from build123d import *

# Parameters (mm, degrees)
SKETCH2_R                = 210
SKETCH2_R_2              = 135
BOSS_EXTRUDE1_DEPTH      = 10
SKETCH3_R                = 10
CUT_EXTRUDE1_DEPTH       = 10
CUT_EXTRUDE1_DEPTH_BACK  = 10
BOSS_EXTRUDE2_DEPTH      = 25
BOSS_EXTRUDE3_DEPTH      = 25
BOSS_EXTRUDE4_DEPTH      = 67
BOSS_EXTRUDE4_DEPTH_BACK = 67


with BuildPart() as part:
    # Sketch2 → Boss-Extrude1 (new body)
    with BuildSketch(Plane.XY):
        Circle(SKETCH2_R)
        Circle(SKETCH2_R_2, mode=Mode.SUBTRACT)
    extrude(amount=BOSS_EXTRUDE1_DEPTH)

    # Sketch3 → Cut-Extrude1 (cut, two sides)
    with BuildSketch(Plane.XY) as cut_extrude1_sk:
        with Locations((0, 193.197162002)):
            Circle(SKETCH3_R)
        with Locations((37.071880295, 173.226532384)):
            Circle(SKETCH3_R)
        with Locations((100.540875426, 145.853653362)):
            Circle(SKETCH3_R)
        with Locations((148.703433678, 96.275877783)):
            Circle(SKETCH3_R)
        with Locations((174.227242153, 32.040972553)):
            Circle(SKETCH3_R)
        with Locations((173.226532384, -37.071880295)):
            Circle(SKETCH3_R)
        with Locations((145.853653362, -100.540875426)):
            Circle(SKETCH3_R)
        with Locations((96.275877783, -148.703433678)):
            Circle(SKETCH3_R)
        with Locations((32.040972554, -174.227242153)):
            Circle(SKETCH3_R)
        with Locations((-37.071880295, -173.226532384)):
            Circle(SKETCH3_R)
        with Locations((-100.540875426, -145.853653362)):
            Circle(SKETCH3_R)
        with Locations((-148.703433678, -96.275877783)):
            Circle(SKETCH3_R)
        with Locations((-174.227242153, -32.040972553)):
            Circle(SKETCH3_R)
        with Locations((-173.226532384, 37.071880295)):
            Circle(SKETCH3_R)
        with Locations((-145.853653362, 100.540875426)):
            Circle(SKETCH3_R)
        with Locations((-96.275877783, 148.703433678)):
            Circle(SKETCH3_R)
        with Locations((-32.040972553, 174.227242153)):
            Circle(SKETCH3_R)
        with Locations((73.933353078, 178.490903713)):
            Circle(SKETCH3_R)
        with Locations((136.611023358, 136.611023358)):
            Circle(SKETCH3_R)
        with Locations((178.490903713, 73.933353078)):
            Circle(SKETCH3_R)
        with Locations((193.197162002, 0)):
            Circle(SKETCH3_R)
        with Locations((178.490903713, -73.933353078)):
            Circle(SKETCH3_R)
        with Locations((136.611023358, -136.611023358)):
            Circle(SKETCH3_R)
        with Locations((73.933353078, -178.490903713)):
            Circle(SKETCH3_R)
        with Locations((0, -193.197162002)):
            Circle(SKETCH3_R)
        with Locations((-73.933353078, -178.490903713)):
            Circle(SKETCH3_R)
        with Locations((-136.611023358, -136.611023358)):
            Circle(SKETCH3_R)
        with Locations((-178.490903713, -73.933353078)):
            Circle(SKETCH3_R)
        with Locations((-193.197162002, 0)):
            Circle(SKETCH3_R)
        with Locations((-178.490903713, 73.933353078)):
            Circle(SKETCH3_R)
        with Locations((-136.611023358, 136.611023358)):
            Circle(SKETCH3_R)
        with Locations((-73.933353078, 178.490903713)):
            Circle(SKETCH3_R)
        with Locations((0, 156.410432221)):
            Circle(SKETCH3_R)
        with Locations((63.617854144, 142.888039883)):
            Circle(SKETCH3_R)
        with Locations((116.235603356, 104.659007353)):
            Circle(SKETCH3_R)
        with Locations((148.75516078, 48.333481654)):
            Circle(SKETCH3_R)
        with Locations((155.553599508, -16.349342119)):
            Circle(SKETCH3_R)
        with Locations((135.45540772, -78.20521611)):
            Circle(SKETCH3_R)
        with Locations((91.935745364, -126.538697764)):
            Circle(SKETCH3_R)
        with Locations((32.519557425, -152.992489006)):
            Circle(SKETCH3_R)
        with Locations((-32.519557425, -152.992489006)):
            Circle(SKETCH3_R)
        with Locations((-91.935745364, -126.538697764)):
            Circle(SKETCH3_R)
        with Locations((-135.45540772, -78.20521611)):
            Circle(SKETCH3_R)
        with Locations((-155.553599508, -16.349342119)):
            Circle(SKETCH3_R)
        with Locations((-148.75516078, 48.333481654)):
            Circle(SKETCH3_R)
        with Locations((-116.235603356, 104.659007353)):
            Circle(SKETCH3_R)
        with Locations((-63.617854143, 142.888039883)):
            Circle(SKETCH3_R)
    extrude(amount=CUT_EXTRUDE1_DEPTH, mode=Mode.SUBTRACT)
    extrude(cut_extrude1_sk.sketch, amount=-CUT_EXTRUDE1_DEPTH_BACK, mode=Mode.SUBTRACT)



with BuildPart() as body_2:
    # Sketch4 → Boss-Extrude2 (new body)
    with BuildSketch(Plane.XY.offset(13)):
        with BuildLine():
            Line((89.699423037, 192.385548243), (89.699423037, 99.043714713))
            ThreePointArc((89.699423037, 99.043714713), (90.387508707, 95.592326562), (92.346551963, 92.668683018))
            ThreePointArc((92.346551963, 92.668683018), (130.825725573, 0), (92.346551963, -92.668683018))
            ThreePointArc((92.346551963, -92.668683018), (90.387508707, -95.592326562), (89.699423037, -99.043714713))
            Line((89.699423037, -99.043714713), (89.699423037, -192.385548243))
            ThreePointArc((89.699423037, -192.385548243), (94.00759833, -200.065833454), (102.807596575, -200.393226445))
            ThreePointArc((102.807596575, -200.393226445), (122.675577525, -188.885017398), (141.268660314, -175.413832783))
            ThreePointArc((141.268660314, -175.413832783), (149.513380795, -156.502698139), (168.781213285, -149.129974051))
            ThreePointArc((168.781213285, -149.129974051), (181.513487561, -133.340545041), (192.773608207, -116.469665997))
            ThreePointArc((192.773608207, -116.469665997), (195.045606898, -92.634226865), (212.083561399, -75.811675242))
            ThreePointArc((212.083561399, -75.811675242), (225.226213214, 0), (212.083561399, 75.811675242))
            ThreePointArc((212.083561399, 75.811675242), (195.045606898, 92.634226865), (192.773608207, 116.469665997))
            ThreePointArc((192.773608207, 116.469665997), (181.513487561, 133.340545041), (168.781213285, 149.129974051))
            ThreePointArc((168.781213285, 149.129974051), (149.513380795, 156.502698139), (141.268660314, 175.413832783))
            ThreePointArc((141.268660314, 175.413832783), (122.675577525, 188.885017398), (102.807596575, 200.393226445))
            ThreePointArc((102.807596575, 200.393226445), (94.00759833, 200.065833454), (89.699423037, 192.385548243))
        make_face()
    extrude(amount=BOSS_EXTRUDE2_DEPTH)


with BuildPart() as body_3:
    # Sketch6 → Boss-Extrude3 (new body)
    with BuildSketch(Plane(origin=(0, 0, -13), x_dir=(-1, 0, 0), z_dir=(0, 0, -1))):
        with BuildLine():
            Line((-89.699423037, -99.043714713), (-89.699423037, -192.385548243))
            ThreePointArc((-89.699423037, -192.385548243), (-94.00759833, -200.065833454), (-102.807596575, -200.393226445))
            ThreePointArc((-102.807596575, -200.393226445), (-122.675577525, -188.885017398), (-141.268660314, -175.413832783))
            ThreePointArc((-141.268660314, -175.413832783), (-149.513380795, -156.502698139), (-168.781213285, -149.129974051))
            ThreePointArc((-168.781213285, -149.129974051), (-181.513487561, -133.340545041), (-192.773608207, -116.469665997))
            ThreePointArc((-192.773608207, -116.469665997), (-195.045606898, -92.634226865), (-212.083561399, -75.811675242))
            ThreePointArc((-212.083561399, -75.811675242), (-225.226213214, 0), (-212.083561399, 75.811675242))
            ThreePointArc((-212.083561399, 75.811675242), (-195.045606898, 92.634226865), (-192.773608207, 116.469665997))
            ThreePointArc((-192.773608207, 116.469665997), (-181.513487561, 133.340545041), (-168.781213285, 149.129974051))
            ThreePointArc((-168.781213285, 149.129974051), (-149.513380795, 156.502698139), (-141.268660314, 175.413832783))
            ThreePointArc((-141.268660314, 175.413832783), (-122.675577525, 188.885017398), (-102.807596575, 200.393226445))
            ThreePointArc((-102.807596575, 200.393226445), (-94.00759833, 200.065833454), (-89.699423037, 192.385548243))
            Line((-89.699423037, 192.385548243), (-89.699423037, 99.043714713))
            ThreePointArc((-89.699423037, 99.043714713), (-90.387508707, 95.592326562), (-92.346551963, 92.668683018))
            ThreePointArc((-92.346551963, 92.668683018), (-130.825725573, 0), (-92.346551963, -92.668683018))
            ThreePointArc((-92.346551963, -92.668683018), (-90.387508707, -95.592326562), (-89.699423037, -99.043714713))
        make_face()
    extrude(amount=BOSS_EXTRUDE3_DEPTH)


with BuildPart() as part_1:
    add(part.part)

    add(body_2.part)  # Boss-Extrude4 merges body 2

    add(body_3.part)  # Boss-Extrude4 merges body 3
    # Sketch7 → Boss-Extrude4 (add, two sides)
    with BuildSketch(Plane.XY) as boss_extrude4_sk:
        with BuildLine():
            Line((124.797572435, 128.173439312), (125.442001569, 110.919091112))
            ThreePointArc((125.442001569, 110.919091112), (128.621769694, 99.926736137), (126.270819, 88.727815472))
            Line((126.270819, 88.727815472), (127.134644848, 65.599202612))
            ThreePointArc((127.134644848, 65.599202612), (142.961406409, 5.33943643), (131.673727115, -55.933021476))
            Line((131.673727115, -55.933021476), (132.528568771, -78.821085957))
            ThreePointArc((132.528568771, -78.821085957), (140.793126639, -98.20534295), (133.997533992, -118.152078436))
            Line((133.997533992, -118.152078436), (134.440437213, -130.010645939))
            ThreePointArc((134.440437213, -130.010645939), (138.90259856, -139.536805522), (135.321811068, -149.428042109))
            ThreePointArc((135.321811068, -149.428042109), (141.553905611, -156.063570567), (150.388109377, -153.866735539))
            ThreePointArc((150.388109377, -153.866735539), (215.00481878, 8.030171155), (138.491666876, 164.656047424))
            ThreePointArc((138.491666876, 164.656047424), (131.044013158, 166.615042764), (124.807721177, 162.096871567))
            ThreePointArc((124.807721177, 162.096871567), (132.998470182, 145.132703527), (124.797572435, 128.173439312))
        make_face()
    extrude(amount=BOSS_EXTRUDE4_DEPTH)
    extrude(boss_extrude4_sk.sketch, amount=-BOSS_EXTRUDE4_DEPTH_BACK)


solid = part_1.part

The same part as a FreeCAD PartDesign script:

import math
import FreeCAD as App
import Part
import Sketcher

V = App.Vector

doc = App.newDocument("Part")
body = doc.addObject("PartDesign::Body", "Body")

sketch1 = body.newObject("Sketcher::SketchObject", "Sketch")
sketch1.AttachmentSupport = (doc.getObject("XY_Plane"), [""])
sketch1.MapMode = "FlatFace"
sketch1.addGeometry([
    Part.Circle(V(0, 0, 0), V(0, 0, 1), 210),
    Part.Circle(V(0, 0, 0), V(0, 0, 1), 135),
], False)
sketch1.addConstraint([
    Sketcher.Constraint("Coincident", 0, 3, -1, 1),
    Sketcher.Constraint("Coincident", 1, 3, -1, 1),
    Sketcher.Constraint("Diameter", 0, 420.0),
    Sketcher.Constraint("Diameter", 1, 270.0),
])
pad1 = body.newObject("PartDesign::Pad", "Pad")
pad1.Profile = sketch1
pad1.Length = 10

sketch2 = body.newObject("Sketcher::SketchObject", "Sketch001")
sketch2.AttachmentSupport = (doc.getObject("XY_Plane"), [""])
sketch2.MapMode = "FlatFace"
sketch2.addGeometry([
    Part.Circle(V(0, 193, 0), V(0, 0, 1), 10),
    Part.Circle(V(37, 173, 0), V(0, 0, 1), 10),
    Part.Circle(V(101, 146, 0), V(0, 0, 1), 10),
    Part.Circle(V(149, 96, 0), V(0, 0, 1), 10),
    Part.Circle(V(174, 32, 0), V(0, 0, 1), 10),
    Part.Circle(V(173, -37, 0), V(0, 0, 1), 10),
    Part.Circle(V(146, -101, 0), V(0, 0, 1), 10),
    Part.Circle(V(96, -149, 0), V(0, 0, 1), 10),
    Part.Circle(V(32, -174, 0), V(0, 0, 1), 10),
    Part.Circle(V(-37, -173, 0), V(0, 0, 1), 10),
    Part.Circle(V(-101, -146, 0), V(0, 0, 1), 10),
    Part.Circle(V(-149, -96, 0), V(0, 0, 1), 10),
    Part.Circle(V(-174, -32, 0), V(0, 0, 1), 10),
    Part.Circle(V(-173, 37, 0), V(0, 0, 1), 10),
    Part.Circle(V(-146, 101, 0), V(0, 0, 1), 10),
    Part.Circle(V(-96, 149, 0), V(0, 0, 1), 10),
    Part.Circle(V(-32, 174, 0), V(0, 0, 1), 10),
    Part.Circle(V(74, 178, 0), V(0, 0, 1), 10),
    Part.Circle(V(137, 137, 0), V(0, 0, 1), 10),
    Part.Circle(V(178, 74, 0), V(0, 0, 1), 10),
    Part.Circle(V(193, 0, 0), V(0, 0, 1), 10),
    Part.Circle(V(178, -74, 0), V(0, 0, 1), 10),
    Part.Circle(V(137, -137, 0), V(0, 0, 1), 10),
    Part.Circle(V(74, -178, 0), V(0, 0, 1), 10),
    Part.Circle(V(0, -193, 0), V(0, 0, 1), 10),
    Part.Circle(V(-74, -178, 0), V(0, 0, 1), 10),
    Part.Circle(V(-137, -137, 0), V(0, 0, 1), 10),
    Part.Circle(V(-178, -74, 0), V(0, 0, 1), 10),
    Part.Circle(V(-193, 0, 0), V(0, 0, 1), 10),
    Part.Circle(V(-178, 74, 0), V(0, 0, 1), 10),
    Part.Circle(V(-137, 137, 0), V(0, 0, 1), 10),
    Part.Circle(V(-74, 178, 0), V(0, 0, 1), 10),
    Part.Circle(V(0, 156, 0), V(0, 0, 1), 10),
    Part.Circle(V(64, 143, 0), V(0, 0, 1), 10),
    Part.Circle(V(116, 105, 0), V(0, 0, 1), 10),
    Part.Circle(V(149, 48, 0), V(0, 0, 1), 10),
    Part.Circle(V(156, -16, 0), V(0, 0, 1), 10),
    Part.Circle(V(135, -78, 0), V(0, 0, 1), 10),
    Part.Circle(V(92, -127, 0), V(0, 0, 1), 10),
    Part.Circle(V(33, -153, 0), V(0, 0, 1), 10),
    Part.Circle(V(-33, -153, 0), V(0, 0, 1), 10),
    Part.Circle(V(-92, -127, 0), V(0, 0, 1), 10),
    Part.Circle(V(-135, -78, 0), V(0, 0, 1), 10),
    Part.Circle(V(-156, -16, 0), V(0, 0, 1), 10),
    Part.Circle(V(-149, 48, 0), V(0, 0, 1), 10),
    Part.Circle(V(-116, 105, 0), V(0, 0, 1), 10),
    Part.Circle(V(-64, 143, 0), V(0, 0, 1), 10),
], False)
sketch2.addConstraint([
    Sketcher.Constraint("Equal", 0, 1),
    Sketcher.Constraint("Equal", 1, 2),
    Sketcher.Constraint("Equal", 2, 3),
    Sketcher.Constraint("Equal", 3, 4),
    Sketcher.Constraint("Equal", 4, 5),
    Sketcher.Constraint("Equal", 5, 6),
    Sketcher.Constraint("Equal", 6, 7),
    Sketcher.Constraint("Equal", 7, 8),
    Sketcher.Constraint("Equal", 8, 9),
    Sketcher.Constraint("Equal", 9, 10),
    Sketcher.Constraint("Equal", 10, 11),
    Sketcher.Constraint("Equal", 11, 12),
    Sketcher.Constraint("Equal", 12, 13),
    Sketcher.Constraint("Equal", 13, 14),
    Sketcher.Constraint("Equal", 14, 15),
    Sketcher.Constraint("Equal", 15, 16),
    Sketcher.Constraint("Equal", 16, 17),
    Sketcher.Constraint("Equal", 17, 18),
    Sketcher.Constraint("Equal", 18, 19),
    Sketcher.Constraint("Equal", 19, 20),
    Sketcher.Constraint("Equal", 20, 21),
    Sketcher.Constraint("Equal", 21, 22),
    Sketcher.Constraint("Equal", 22, 23),
    Sketcher.Constraint("Equal", 23, 24),
    Sketcher.Constraint("Equal", 24, 25),
    Sketcher.Constraint("Equal", 25, 26),
    Sketcher.Constraint("Equal", 26, 27),
    Sketcher.Constraint("Equal", 27, 28),
    Sketcher.Constraint("Equal", 28, 29),
    Sketcher.Constraint("Equal", 29, 30),
    Sketcher.Constraint("Equal", 30, 31),
    Sketcher.Constraint("Equal", 31, 32),
    Sketcher.Constraint("Equal", 32, 33),
    Sketcher.Constraint("Equal", 33, 34),
    Sketcher.Constraint("Equal", 34, 35),
    Sketcher.Constraint("Equal", 35, 36),
    Sketcher.Constraint("Equal", 36, 37),
    Sketcher.Constraint("Equal", 37, 38),
    Sketcher.Constraint("Equal", 38, 39),
    Sketcher.Constraint("Equal", 39, 40),
    Sketcher.Constraint("Equal", 40, 41),
    Sketcher.Constraint("Equal", 41, 42),
    Sketcher.Constraint("Equal", 42, 43),
    Sketcher.Constraint("Equal", 43, 44),
    Sketcher.Constraint("Equal", 44, 45),
    Sketcher.Constraint("Equal", 45, 46),
    Sketcher.Constraint("Symmetric", 1, 3, 9, 3, -1, 1),
    Sketcher.Constraint("Symmetric", 2, 3, 10, 3, -1, 1),
    Sketcher.Constraint("Symmetric", 3, 3, 11, 3, -1, 1),
    Sketcher.Constraint("Symmetric", 4, 3, 12, 3, -1, 1),
    Sketcher.Constraint("Symmetric", 5, 3, 13, 3, -1, 1),
    Sketcher.Constraint("Symmetric", 6, 3, 14, 3, -1, 1),
    Sketcher.Constraint("Symmetric", 7, 3, 15, 3, -1, 1),
    Sketcher.Constraint("Symmetric", 8, 3, 16, 3, -1, 1),
    Sketcher.Constraint("Symmetric", 0, 3, 24, 3, -1, 1),
    Sketcher.Constraint("Symmetric", 17, 3, 25, 3, -1, 1),
    Sketcher.Constraint("Symmetric", 18, 3, 26, 3, -1, 1),
    Sketcher.Constraint("Symmetric", 19, 3, 27, 3, -1, 1),
    Sketcher.Constraint("Symmetric", 20, 3, 28, 3, -1, 1),
    Sketcher.Constraint("Symmetric", 21, 3, 29, 3, -1, 1),
    Sketcher.Constraint("Symmetric", 22, 3, 30, 3, -1, 1),
    Sketcher.Constraint("Symmetric", 23, 3, 31, 3, -1, 1),
    Sketcher.Constraint("Symmetric", 23, 3, 25, 3, -2),
    Sketcher.Constraint("Symmetric", 22, 3, 26, 3, -2),
    Sketcher.Constraint("Symmetric", 21, 3, 27, 3, -2),
    Sketcher.Constraint("Symmetric", 39, 3, 40, 3, -2),
    Sketcher.Constraint("Symmetric", 38, 3, 41, 3, -2),
    Sketcher.Constraint("Symmetric", 37, 3, 42, 3, -2),
    Sketcher.Constraint("Symmetric", 36, 3, 43, 3, -2),
    Sketcher.Constraint("Symmetric", 35, 3, 44, 3, -2),
    Sketcher.Constraint("Symmetric", 34, 3, 45, 3, -2),
    Sketcher.Constraint("Symmetric", 33, 3, 46, 3, -2),
    Sketcher.Constraint("PointOnObject", 0, 3, -2),
    Sketcher.Constraint("PointOnObject", 20, 3, -1),
    Sketcher.Constraint("PointOnObject", 32, 3, -2),
    Sketcher.Constraint("Diameter", 0, 20.0),
    Sketcher.Constraint("DistanceX", 35, 3, 20, 3, 44.442001),
    Sketcher.Constraint("DistanceX", -1, 1, 36, 3, 155.5536),
    Sketcher.Constraint("DistanceX", 3, 3, 5, 3, 24.523099),
    Sketcher.Constraint("DistanceY", 9, 3, 7, 3, 24.523099),
    Sketcher.Constraint("DistanceY", 19, 3, 2, 3, 71.9203),
    Sketcher.Constraint("DistanceX", 23, 3, 6, 3, 71.9203),
    Sketcher.Constraint("DistanceY", 32, 3, 1, 3, 16.8161),
    Sketcher.Constraint("DistanceX", 33, 3, 17, 3, 10.315499),
    Sketcher.Constraint("DistanceX", 34, 3, 19, 3, 62.2553),
    Sketcher.Constraint("DistanceY", 13, 3, 44, 3, 11.261601),
    Sketcher.Constraint("DistanceX", -1, 1, 1, 3, 37.07188),
    Sketcher.Constraint("DistanceY", 5, 3, -1, 1, 37.07188),
    Sketcher.Constraint("DistanceY", -1, 1, 33, 3, 142.88804),
    Sketcher.Constraint("DistanceX", -1, 1, 35, 3, 148.755161),
    Sketcher.Constraint("DistanceY", 39, 3, -1, 1, 152.992489),
    Sketcher.Constraint("DistanceY", 1, 3, 0, 3, 19.97063),
    Sketcher.Constraint("DistanceY", 2, 3, 1, 3, 27.372879),
    Sketcher.Constraint("DistanceX", 2, 3, 3, 3, 48.162558),
    Sketcher.Constraint("DistanceX", 3, 3, 4, 3, 25.523808),
    Sketcher.Constraint("DistanceY", 4, 3, 2, 3, 113.812681),
    Sketcher.Constraint("DistanceX", 1, 3, 4, 3, 137.155362),
    Sketcher.Constraint("DistanceY", 5, 3, 3, 3, 133.347758),
    Sketcher.Constraint("DistanceX", 6, 3, 5, 3, 27.372879),
    Sketcher.Constraint("DistanceY", 6, 3, 2, 3, 246.394529),
    Sketcher.Constraint("DistanceY", 7, 3, 6, 3, 48.162558),
    Sketcher.Constraint("DistanceY", 8, 3, 7, 3, 25.523808),
    Sketcher.Constraint("DistanceX", 8, 3, 6, 3, 113.812681),
    Sketcher.Constraint("DistanceX", 9, 3, 7, 3, 133.347758),
    Sketcher.Constraint("DistanceY", 1, 3, 17, 3, 5.264371),
    Sketcher.Constraint("DistanceY", 18, 3, 2, 3, 9.24263),
    Sketcher.Constraint("DistanceX", 18, 3, 3, 3, 12.09241),
    Sketcher.Constraint("DistanceX", 3, 3, 19, 3, 29.78747),
    Sketcher.Constraint("DistanceY", 3, 3, 34, 3, 8.38313),
    Sketcher.Constraint("DistanceY", 5, 3, 36, 3, 20.722538),
    Sketcher.Constraint("DistanceY", 6, 3, 37, 3, 22.335659),
    Sketcher.Constraint("DistanceX", 37, 3, 36, 3, 20.098192),
    Sketcher.Constraint("DistanceY", 38, 3, 37, 3, 48.333482),
    Sketcher.Constraint("DistanceX", 39, 3, 7, 3, 63.75632),
    Sketcher.Constraint("DistanceX", 10, 3, 41, 3, 8.60513),
])
pocket1 = body.newObject("PartDesign::Pocket", "Pocket")
pocket1.Profile = sketch2
pocket1.Type = "ThroughAll"
pocket1.Midplane = True
body2 = doc.addObject("PartDesign::Body", "Body001")

sketch3 = body2.newObject("Sketcher::SketchObject", "Sketch002")
sketch3.AttachmentSupport = (doc.getObject("XY_Plane001"), [""])
sketch3.MapMode = "FlatFace"
sketch3.AttachmentOffset = App.Placement(V(0, 0, 13), App.Rotation())
sketch3.addGeometry([
    Part.LineSegment(V(90, 192, 0), V(90, 99, 0)),
    Part.ArcOfCircle(Part.Circle(V(99, 99, 0), V(0, 0, 1), 9), math.radians(180), math.radians(225)),
    Part.ArcOfCircle(Part.Circle(V(0, 0, 0), V(0, 0, 1), 131), math.radians(-45), math.radians(45)),
    Part.ArcOfCircle(Part.Circle(V(99, -99, 0), V(0, 0, 1), 9), math.radians(135), math.radians(180)),
    Part.LineSegment(V(90, -99, 0), V(90, -192, 0)),
    Part.ArcOfCircle(Part.Circle(V(99, -192, 0), V(0, 0, 1), 9), math.radians(180), math.radians(297)),
    Part.ArcOfCircle(Part.Circle(V(0, 0, 0), V(0, 0, 1), 225), math.radians(-62.84), math.radians(-51.15)),
    Part.ArcOfCircle(Part.Circle(V(168, -176, 0), V(0, 0, 1), 27), math.radians(88), math.radians(179)),
    Part.ArcOfCircle(Part.Circle(V(0, 0, 0), V(0, 0, 1), 225), math.radians(-41.46), math.radians(-31.14)),
    Part.ArcOfCircle(Part.Circle(V(227, -108, 0), V(0, 0, 1), 35), math.radians(115), math.radians(195)),
    Part.ArcOfCircle(Part.Circle(V(0, 0, 0), V(0, 0, 1), 225), math.radians(-20), math.radians(20)),
    Part.ArcOfCircle(Part.Circle(V(227, 108, 0), V(0, 0, 1), 35), math.radians(165), math.radians(245)),
    Part.ArcOfCircle(Part.Circle(V(0, 0, 0), V(0, 0, 1), 225), math.radians(31.14), math.radians(41.46)),
    Part.ArcOfCircle(Part.Circle(V(168, 176, 0), V(0, 0, 1), 27), math.radians(-179), math.radians(-88)),
    Part.ArcOfCircle(Part.Circle(V(0, 0, 0), V(0, 0, 1), 225), math.radians(51.15), math.radians(62.84)),
    Part.ArcOfCircle(Part.Circle(V(99, 192, 0), V(0, 0, 1), 9), math.radians(63), math.radians(180)),
], False)
sketch3.addConstraint([
    Sketcher.Constraint("Tangent", 0, 2, 1, 1),
    Sketcher.Constraint("Tangent", 1, 2, 2, 2),
    Sketcher.Constraint("Tangent", 2, 1, 3, 1),
    Sketcher.Constraint("Tangent", 3, 2, 4, 1),
    Sketcher.Constraint("Tangent", 4, 2, 5, 1),
    Sketcher.Constraint("Tangent", 5, 2, 6, 1),
    Sketcher.Constraint("Coincident", 6, 2, 7, 2),
    Sketcher.Constraint("Coincident", 7, 1, 8, 1),
    Sketcher.Constraint("Coincident", 8, 2, 9, 2),
    Sketcher.Constraint("Coincident", 9, 1, 10, 1),
    Sketcher.Constraint("Coincident", 10, 2, 11, 2),
    Sketcher.Constraint("Coincident", 11, 1, 12, 1),
    Sketcher.Constraint("Coincident", 12, 2, 13, 2),
    Sketcher.Constraint("Coincident", 13, 1, 14, 1),
    Sketcher.Constraint("Tangent", 14, 2, 15, 1),
    Sketcher.Constraint("Tangent", 15, 2, 0, 1),
    Sketcher.Constraint("Vertical", 0),
    Sketcher.Constraint("Vertical", 4),
    Sketcher.Constraint("Coincident", 2, 3, -1, 1),
    Sketcher.Constraint("Coincident", 6, 3, -1, 1),
    Sketcher.Constraint("Coincident", 8, 3, -1, 1),
    Sketcher.Constraint("Coincident", 10, 3, -1, 1),
    Sketcher.Constraint("Coincident", 12, 3, -1, 1),
    Sketcher.Constraint("Coincident", 14, 3, -1, 1),
    Sketcher.Constraint("Equal", 1, 3),
    Sketcher.Constraint("Equal", 3, 5),
    Sketcher.Constraint("Equal", 6, 8),
    Sketcher.Constraint("Equal", 8, 10),
    Sketcher.Constraint("Equal", 9, 11),
    Sketcher.Constraint("Equal", 10, 12),
    Sketcher.Constraint("Equal", 7, 13),
    Sketcher.Constraint("Equal", 12, 14),
    Sketcher.Constraint("Equal", 5, 15),
    Sketcher.Constraint("Symmetric", 9, 3, 11, 3, -1),
    Sketcher.Constraint("Symmetric", 7, 3, 13, 3, -1),
    Sketcher.Constraint("Vertical", 1, 3, 3, 3),
    Sketcher.Constraint("Radius", 1, 9.0),
    Sketcher.Constraint("Radius", 2, 130.825726),
    Sketcher.Constraint("Radius", 6, 225.226213),
    Sketcher.Constraint("Radius", 7, 26.671137),
    Sketcher.Constraint("Radius", 9, 35.070732),
    Sketcher.Constraint("DistanceY", 9, 3, 3, 3, 8.636201),
    Sketcher.Constraint("DistanceY", 7, 1, 9, 1, 73.318299),
    Sketcher.Constraint("DistanceY", 0, 2, 0, 1, 93.341834),
    Sketcher.Constraint("DistanceX", -1, 1, 6, 2, 141.26866),
    Sketcher.Constraint("DistanceX", -1, 1, 8, 2, 192.773608),
])
pad2 = body2.newObject("PartDesign::Pad", "Pad001")
pad2.Profile = sketch3
pad2.Length = 25
body3 = doc.addObject("PartDesign::Body", "Body002")

sketch4 = body3.newObject("Sketcher::SketchObject", "Sketch003")
sketch4.AttachmentSupport = (doc.getObject("XY_Plane002"), [""])
sketch4.MapMode = "FlatFace"
sketch4.AttachmentOffset = App.Placement(V(0, 0, -13), App.Rotation())
sketch4.addGeometry([
    Part.LineSegment(V(90, -192, 0), V(90, -99, 0)),
    Part.ArcOfCircle(Part.Circle(V(99, -99, 0), V(0, 0, 1), 9), math.radians(135), math.radians(180)),
    Part.ArcOfCircle(Part.Circle(V(0, 0, 0), V(0, 0, 1), 131), math.radians(-45), math.radians(45)),
    Part.ArcOfCircle(Part.Circle(V(99, 99, 0), V(0, 0, 1), 9), math.radians(180), math.radians(225)),
    Part.LineSegment(V(90, 99, 0), V(90, 192, 0)),
    Part.ArcOfCircle(Part.Circle(V(99, 192, 0), V(0, 0, 1), 9), math.radians(63), math.radians(180)),
    Part.ArcOfCircle(Part.Circle(V(0, 0, 0), V(0, 0, 1), 225), math.radians(51.15), math.radians(62.84)),
    Part.ArcOfCircle(Part.Circle(V(168, 176, 0), V(0, 0, 1), 27), math.radians(-179), math.radians(-88)),
    Part.ArcOfCircle(Part.Circle(V(0, 0, 0), V(0, 0, 1), 225), math.radians(31.14), math.radians(41.46)),
    Part.ArcOfCircle(Part.Circle(V(227, 108, 0), V(0, 0, 1), 35), math.radians(165), math.radians(245)),
    Part.ArcOfCircle(Part.Circle(V(0, 0, 0), V(0, 0, 1), 225), math.radians(-20), math.radians(20)),
    Part.ArcOfCircle(Part.Circle(V(227, -108, 0), V(0, 0, 1), 35), math.radians(115), math.radians(195)),
    Part.ArcOfCircle(Part.Circle(V(0, 0, 0), V(0, 0, 1), 225), math.radians(-41.46), math.radians(-31.14)),
    Part.ArcOfCircle(Part.Circle(V(168, -176, 0), V(0, 0, 1), 27), math.radians(88), math.radians(179)),
    Part.ArcOfCircle(Part.Circle(V(0, 0, 0), V(0, 0, 1), 225), math.radians(-62.84), math.radians(-51.15)),
    Part.ArcOfCircle(Part.Circle(V(99, -192, 0), V(0, 0, 1), 9), math.radians(180), math.radians(297)),
], False)
sketch4.addConstraint([
    Sketcher.Constraint("Tangent", 0, 2, 1, 2),
    Sketcher.Constraint("Tangent", 1, 1, 2, 1),
    Sketcher.Constraint("Tangent", 2, 2, 3, 2),
    Sketcher.Constraint("Tangent", 3, 1, 4, 1),
    Sketcher.Constraint("Tangent", 4, 2, 5, 2),
    Sketcher.Constraint("Tangent", 5, 1, 6, 2),
    Sketcher.Constraint("Coincident", 6, 1, 7, 1),
    Sketcher.Constraint("Coincident", 7, 2, 8, 2),
    Sketcher.Constraint("Coincident", 8, 1, 9, 1),
    Sketcher.Constraint("Coincident", 9, 2, 10, 2),
    Sketcher.Constraint("Coincident", 10, 1, 11, 1),
    Sketcher.Constraint("Coincident", 11, 2, 12, 2),
    Sketcher.Constraint("Coincident", 12, 1, 13, 1),
    Sketcher.Constraint("Coincident", 13, 2, 14, 2),
    Sketcher.Constraint("Tangent", 14, 1, 15, 2),
    Sketcher.Constraint("Tangent", 15, 1, 0, 1),
    Sketcher.Constraint("Vertical", 0),
    Sketcher.Constraint("Vertical", 4),
    Sketcher.Constraint("Coincident", 2, 3, -1, 1),
    Sketcher.Constraint("Coincident", 6, 3, -1, 1),
    Sketcher.Constraint("Coincident", 8, 3, -1, 1),
    Sketcher.Constraint("Coincident", 10, 3, -1, 1),
    Sketcher.Constraint("Coincident", 12, 3, -1, 1),
    Sketcher.Constraint("Coincident", 14, 3, -1, 1),
    Sketcher.Constraint("Equal", 1, 3),
    Sketcher.Constraint("Equal", 3, 5),
    Sketcher.Constraint("Equal", 6, 8),
    Sketcher.Constraint("Equal", 8, 10),
    Sketcher.Constraint("Equal", 9, 11),
    Sketcher.Constraint("Equal", 10, 12),
    Sketcher.Constraint("Equal", 7, 13),
    Sketcher.Constraint("Equal", 12, 14),
    Sketcher.Constraint("Equal", 5, 15),
    Sketcher.Constraint("Symmetric", 9, 3, 11, 3, -1),
    Sketcher.Constraint("Symmetric", 7, 3, 13, 3, -1),
    Sketcher.Constraint("Vertical", 1, 3, 3, 3),
    Sketcher.Constraint("Radius", 1, 9.0),
    Sketcher.Constraint("Radius", 2, 130.825726),
    Sketcher.Constraint("Radius", 6, 225.226213),
    Sketcher.Constraint("Radius", 7, 26.671137),
    Sketcher.Constraint("Radius", 9, 35.070732),
    Sketcher.Constraint("DistanceY", 3, 3, 9, 3, 8.636201),
    Sketcher.Constraint("DistanceY", 9, 2, 7, 2, 73.318299),
    Sketcher.Constraint("DistanceY", 0, 1, 0, 2, 93.341834),
    Sketcher.Constraint("DistanceX", -1, 1, 6, 1, 141.26866),
    Sketcher.Constraint("DistanceX", -1, 1, 8, 1, 192.773608),
])
pad3 = body3.newObject("PartDesign::Pad", "Pad002")
pad3.Profile = sketch4
pad3.Length = 25
pad3.Reversed = True
body.AllowCompound = True
doc.recompute()

boolean = body.newObject("PartDesign::Boolean", "Boolean")
boolean.Type = "Fuse"
boolean.addObjects([body2])
doc.recompute()

boolean2 = body.newObject("PartDesign::Boolean", "Boolean001")
boolean2.Type = "Fuse"
boolean2.addObjects([body3])

sketch5 = body.newObject("Sketcher::SketchObject", "Sketch004")
sketch5.AttachmentSupport = (doc.getObject("XY_Plane"), [""])
sketch5.MapMode = "FlatFace"
sketch5.addGeometry([
    Part.LineSegment(V(124.797572, 128.173439, 0), V(125.442002, 110.919091, 0)),
    Part.ArcOfCircle(Part.Circle(V(104.979203, 99.043715, 0), V(0, 0, 1), 23.659051), math.radians(-25.85043), math.radians(30.128299)),
    Part.LineSegment(V(126.270819, 88.727815, 0), V(127.134645, 65.599203, 0)),
    Part.ArcOfCircle(Part.Circle(V(0, 0, 0), V(0, 0, 1), 143.061082), math.radians(-23.015056), math.radians(27.292925)),
    Part.LineSegment(V(131.673727, -55.933021, 0), V(132.528569, -78.821086, 0)),
    Part.ArcOfCircle(Part.Circle(V(111.348947, -99.305048, 0), V(0, 0, 1), 29.464709), math.radians(-39.765548), math.radians(44.043417)),
    Part.LineSegment(V(133.997534, -118.152078, 0), V(134.440437, -130.010646, 0)),
    Part.ArcOfCircle(Part.Circle(V(125.172426, -140.160031, 0), V(0, 0, 1), 13.74431), math.radians(-42.401075), math.radians(47.598925)),
    Part.ArcOfCircle(Part.Circle(V(144.09732, -147.430434, 0), V(0, 0, 1), 9), math.radians(-167.176031), math.radians(-45.655049)),
    Part.ArcOfCircle(Part.Circle(V(0, 0, 0), V(0, 0, 1), 215.154725), math.radians(-45.655049), math.radians(49.932918)),
    Part.ArcOfCircle(Part.Circle(V(132.69851, 157.768425, 0), V(0, 0, 1), 9), math.radians(49.932918), math.radians(151.253287)),
    Part.ArcOfCircle(Part.Circle(V(111.348947, 145.13918, 0), V(0, 0, 1), 21.649524), math.radians(-51.596381), math.radians(51.562099)),
], False)
sketch5.addConstraint([
    Sketcher.Constraint("Coincident", 0, 2, 1, 2),
    Sketcher.Constraint("Coincident", 1, 1, 2, 1),
    Sketcher.Constraint("Coincident", 2, 2, 3, 2),
    Sketcher.Constraint("Coincident", 3, 1, 4, 1),
    Sketcher.Constraint("Coincident", 4, 2, 5, 2),
    Sketcher.Constraint("Coincident", 5, 1, 6, 1),
    Sketcher.Constraint("Coincident", 6, 2, 7, 2),
    Sketcher.Constraint("Coincident", 7, 1, 8, 1),
    Sketcher.Constraint("Coincident", 8, 2, 9, 1),
    Sketcher.Constraint("Coincident", 9, 2, 10, 1),
    Sketcher.Constraint("Coincident", 10, 2, 11, 2),
    Sketcher.Constraint("Coincident", 11, 1, 0, 1),
    Sketcher.Constraint("Coincident", 3, 3, -1, 1),
    Sketcher.Constraint("Coincident", 9, 3, -1, 1),
    Sketcher.Constraint("Radius", 8, 9.0),
    Sketcher.Constraint("Radius", 10, 9.0),
    Sketcher.Constraint("Radius", 1, 23.659051),
    Sketcher.Constraint("Radius", 5, 29.464709),
    Sketcher.Constraint("Radius", 7, 13.74431),
    Sketcher.Constraint("DistanceX", -1, 1, 0, 2, 125.442002),
    Sketcher.Constraint("Radius", 3, 143.061082),
    Sketcher.Constraint("Radius", 9, 215.154725),
    Sketcher.Constraint("Radius", 11, 21.649524),
    Sketcher.Constraint("DistanceX", 1, 3, 0, 2, 20.462799),
    Sketcher.Constraint("DistanceY", 1, 1, 1, 3, 10.315899),
    Sketcher.Constraint("DistanceX", 7, 3, 3, 1, 6.501301),
    Sketcher.Constraint("DistanceY", 6, 2, 5, 3, 30.705598),
    Sketcher.Constraint("DistanceY", 8, 2, 8, 3, 6.436301),
    Sketcher.Constraint("DistanceX", 7, 1, 8, 2, 15.066298),
    Sketcher.Constraint("Distance", 0, 17.266378),
    Sketcher.Constraint("Distance", 2, 23.144739),
    Sketcher.Constraint("DistanceY", 7, 3, -1, 1, 140.160031),
    Sketcher.Constraint("DistanceX", -1, 1, 8, 3, 144.09732),
    Sketcher.Constraint("DistanceX", -1, 1, 10, 3, 132.69851),
    Sketcher.Constraint("DistanceY", -1, 1, 11, 3, 145.13918),
    Sketcher.Constraint("DistanceY", -1, 1, 0, 2, 110.919091),
    Sketcher.Constraint("DistanceX", -1, 1, 4, 2, 132.528569),
    Sketcher.Constraint("DistanceY", 5, 1, -1, 1, 118.152078),
    Sketcher.Constraint("DistanceX", -1, 1, 10, 2, 124.807721),
    Sketcher.Constraint("DistanceX", 5, 3, 7, 3, 13.823479),
    Sketcher.Constraint("DistanceY", 8, 3, 4, 2, 68.609348),
    Sketcher.Constraint("DistanceX", 11, 3, 9, 2, 27.14272),
])
pad4 = body.newObject("PartDesign::Pad", "Pad003")
pad4.Profile = sketch5
pad4.Type = "TwoLengths"
pad4.Length = 67
pad4.Length2 = 67

doc.recompute()
